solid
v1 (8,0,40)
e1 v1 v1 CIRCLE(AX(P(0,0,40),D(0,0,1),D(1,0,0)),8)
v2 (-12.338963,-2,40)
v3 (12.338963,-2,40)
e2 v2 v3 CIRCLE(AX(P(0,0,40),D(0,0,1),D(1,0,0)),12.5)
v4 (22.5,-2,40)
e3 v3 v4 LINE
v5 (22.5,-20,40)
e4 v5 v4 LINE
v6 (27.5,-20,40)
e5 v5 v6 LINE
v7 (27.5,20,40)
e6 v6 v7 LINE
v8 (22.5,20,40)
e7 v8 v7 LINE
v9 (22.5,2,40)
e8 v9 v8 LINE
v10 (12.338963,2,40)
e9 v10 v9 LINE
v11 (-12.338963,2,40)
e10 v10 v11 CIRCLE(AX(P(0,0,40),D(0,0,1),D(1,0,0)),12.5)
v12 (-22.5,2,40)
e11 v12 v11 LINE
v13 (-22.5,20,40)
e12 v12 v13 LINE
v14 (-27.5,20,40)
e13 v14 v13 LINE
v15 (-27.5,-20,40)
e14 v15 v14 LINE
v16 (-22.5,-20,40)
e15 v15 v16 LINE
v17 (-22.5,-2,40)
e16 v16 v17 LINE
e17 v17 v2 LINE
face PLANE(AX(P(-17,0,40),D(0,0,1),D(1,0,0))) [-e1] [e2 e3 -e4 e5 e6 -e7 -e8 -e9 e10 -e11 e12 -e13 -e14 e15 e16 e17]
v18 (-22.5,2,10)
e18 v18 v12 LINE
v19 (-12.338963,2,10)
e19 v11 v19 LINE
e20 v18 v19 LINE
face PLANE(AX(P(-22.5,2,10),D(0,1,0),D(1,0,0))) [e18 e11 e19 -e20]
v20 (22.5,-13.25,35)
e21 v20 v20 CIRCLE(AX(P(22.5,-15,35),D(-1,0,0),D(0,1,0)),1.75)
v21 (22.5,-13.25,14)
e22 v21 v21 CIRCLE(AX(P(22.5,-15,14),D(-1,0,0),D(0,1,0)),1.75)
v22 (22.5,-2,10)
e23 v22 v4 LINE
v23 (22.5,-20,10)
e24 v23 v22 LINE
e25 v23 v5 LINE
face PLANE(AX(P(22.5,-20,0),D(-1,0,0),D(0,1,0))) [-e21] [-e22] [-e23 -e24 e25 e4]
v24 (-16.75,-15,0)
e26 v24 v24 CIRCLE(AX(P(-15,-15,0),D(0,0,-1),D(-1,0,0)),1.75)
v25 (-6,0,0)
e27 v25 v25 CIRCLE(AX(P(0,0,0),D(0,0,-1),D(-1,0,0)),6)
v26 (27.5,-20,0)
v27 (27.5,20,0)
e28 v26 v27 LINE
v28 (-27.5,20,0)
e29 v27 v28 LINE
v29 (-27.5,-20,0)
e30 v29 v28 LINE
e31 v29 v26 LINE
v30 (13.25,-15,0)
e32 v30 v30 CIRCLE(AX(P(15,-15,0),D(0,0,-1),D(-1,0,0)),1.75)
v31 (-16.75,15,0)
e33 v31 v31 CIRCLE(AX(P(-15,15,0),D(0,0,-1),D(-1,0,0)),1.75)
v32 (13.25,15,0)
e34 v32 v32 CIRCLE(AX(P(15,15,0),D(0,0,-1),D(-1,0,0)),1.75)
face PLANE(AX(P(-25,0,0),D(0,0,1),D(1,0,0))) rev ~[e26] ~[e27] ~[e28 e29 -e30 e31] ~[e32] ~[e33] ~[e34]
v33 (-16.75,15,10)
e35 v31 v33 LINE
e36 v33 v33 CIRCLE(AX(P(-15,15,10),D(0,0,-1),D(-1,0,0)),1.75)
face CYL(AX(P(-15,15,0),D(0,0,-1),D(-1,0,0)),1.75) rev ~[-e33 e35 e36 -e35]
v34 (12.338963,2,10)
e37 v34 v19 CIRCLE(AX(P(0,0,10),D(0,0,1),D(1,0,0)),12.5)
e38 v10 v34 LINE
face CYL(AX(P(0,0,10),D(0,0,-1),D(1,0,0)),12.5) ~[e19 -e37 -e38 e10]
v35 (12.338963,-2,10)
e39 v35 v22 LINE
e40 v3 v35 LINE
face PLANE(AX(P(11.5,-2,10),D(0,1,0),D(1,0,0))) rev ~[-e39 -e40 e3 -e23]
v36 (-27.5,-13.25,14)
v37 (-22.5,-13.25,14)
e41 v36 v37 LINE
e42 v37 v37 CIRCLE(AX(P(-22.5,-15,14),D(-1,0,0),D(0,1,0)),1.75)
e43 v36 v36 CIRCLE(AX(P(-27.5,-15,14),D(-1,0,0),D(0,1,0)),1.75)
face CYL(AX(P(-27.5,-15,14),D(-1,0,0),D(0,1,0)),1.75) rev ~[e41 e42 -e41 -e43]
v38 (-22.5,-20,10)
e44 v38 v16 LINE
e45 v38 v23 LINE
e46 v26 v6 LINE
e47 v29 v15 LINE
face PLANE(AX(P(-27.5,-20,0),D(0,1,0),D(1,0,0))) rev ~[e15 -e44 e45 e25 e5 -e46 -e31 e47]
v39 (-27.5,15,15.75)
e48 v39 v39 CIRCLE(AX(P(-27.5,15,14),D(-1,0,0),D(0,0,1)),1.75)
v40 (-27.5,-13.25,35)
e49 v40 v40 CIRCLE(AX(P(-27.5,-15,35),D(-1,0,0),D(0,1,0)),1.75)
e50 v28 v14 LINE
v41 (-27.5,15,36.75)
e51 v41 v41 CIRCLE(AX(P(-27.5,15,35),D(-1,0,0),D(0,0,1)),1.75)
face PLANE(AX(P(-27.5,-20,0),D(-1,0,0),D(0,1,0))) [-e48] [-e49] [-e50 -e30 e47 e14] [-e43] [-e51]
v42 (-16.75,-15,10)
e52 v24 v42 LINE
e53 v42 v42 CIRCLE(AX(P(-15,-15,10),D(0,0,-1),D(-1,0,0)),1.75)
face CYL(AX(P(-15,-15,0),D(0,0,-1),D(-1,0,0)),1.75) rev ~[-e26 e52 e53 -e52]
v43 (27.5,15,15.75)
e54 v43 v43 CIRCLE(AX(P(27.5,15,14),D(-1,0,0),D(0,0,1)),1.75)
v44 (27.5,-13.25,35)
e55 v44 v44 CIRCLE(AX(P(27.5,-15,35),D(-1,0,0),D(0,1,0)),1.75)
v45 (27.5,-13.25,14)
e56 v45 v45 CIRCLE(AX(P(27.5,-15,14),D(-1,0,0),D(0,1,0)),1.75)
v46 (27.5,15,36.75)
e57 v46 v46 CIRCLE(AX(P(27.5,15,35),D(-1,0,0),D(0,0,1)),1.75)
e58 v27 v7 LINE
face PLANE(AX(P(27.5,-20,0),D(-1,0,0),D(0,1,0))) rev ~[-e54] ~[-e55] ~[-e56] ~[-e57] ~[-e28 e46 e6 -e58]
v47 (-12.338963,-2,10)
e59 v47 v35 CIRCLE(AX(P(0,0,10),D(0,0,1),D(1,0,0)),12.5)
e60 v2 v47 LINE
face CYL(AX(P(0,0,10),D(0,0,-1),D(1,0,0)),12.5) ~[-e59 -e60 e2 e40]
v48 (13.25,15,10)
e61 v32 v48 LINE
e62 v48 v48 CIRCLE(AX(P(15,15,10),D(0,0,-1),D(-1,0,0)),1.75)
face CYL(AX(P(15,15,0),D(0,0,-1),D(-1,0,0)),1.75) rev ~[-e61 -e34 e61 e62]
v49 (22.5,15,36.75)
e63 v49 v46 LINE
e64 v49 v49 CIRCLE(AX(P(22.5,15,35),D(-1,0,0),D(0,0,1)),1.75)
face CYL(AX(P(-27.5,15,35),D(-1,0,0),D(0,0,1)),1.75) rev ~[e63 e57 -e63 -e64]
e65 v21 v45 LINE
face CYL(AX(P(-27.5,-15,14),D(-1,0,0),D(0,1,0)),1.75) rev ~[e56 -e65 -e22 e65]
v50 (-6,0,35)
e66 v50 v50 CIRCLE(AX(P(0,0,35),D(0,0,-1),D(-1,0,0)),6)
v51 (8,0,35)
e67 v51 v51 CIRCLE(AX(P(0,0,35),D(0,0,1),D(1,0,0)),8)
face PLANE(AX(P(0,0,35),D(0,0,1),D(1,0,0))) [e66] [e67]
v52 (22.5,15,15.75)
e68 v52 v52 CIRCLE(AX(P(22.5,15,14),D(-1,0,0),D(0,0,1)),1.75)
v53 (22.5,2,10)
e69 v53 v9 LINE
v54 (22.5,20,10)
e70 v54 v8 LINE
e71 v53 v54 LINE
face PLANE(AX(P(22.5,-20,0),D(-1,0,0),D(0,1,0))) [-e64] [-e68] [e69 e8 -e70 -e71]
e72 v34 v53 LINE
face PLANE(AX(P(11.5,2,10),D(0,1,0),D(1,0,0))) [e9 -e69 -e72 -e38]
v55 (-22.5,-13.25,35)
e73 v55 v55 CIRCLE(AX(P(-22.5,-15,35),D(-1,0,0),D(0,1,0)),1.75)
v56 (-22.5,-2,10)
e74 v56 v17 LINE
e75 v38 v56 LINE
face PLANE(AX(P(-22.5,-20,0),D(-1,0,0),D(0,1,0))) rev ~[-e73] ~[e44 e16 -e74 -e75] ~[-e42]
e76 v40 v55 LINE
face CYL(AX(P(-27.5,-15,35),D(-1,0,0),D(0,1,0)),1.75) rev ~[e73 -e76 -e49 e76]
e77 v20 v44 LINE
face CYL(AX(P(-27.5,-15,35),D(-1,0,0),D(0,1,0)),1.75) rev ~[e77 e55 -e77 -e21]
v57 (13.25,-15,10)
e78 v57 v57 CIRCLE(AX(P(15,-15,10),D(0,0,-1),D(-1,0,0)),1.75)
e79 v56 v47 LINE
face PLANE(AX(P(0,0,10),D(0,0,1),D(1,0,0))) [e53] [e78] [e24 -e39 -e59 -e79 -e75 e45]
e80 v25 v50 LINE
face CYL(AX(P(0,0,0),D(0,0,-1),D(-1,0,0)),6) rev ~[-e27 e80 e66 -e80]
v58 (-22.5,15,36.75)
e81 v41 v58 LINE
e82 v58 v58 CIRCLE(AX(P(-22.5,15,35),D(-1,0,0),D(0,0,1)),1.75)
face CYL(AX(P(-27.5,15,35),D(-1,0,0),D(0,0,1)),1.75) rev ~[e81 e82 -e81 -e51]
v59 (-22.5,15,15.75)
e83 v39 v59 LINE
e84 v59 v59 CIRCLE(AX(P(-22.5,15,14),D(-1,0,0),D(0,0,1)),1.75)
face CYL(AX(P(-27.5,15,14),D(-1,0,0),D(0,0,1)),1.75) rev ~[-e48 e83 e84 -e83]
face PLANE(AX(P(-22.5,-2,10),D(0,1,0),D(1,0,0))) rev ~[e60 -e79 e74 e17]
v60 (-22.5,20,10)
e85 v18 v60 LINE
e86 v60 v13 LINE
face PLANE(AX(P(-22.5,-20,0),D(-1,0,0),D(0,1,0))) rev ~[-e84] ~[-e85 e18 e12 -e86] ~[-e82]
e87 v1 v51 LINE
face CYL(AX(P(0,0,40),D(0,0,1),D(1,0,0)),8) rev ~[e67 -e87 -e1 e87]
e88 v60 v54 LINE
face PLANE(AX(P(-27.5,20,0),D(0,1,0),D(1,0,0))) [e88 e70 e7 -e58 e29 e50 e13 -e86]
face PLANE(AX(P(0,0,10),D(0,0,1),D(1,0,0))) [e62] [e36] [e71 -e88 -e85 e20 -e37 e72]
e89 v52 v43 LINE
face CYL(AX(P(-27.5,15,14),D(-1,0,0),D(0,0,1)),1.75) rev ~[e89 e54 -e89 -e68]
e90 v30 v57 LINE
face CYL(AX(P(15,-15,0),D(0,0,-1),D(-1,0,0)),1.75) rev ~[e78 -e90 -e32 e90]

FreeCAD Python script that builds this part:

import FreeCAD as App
import Part
import Sketcher

doc = App.newDocument("Part")
body = doc.addObject("PartDesign::Body", "Body")

# Sketch on XY plane
sketch1 = body.newObject("Sketcher::SketchObject", "Sketch")
sketch1.AttachmentSupport = (doc.getObject("XY_Plane"), [""])
sketch1.MapMode = "FlatFace"
sketch1.addGeometry([
    Part.LineSegment(App.Vector(-22, 20, 0), App.Vector(-22, -20, 0)),
    Part.LineSegment(App.Vector(-22, -20, 0), App.Vector(22, -20, 0)),
    Part.LineSegment(App.Vector(22, -20, 0), App.Vector(22, 20, 0)),
    Part.LineSegment(App.Vector(22, 20, 0), App.Vector(-22, 20, 0)),
], False)
sketch1.addConstraint([
    Sketcher.Constraint("Coincident", 0, 2, 1, 1),
    Sketcher.Constraint("Coincident", 1, 2, 2, 1),
    Sketcher.Constraint("Coincident", 2, 2, 3, 1),
    Sketcher.Constraint("Coincident", 3, 2, 0, 1),
    Sketcher.Constraint("Vertical", 0),
    Sketcher.Constraint("Horizontal", 1),
    Sketcher.Constraint("Vertical", 2),
    Sketcher.Constraint("Horizontal", 3),
    Sketcher.Constraint("Symmetric", 0, 2, 2, 2, -1, 1),
    Sketcher.Constraint("DistanceX", 1, 1, 1, 2, 45.0),
    Sketcher.Constraint("DistanceY", 0, 2, 0, 1, 40.0),
])
pad1 = body.newObject("PartDesign::Pad", "Pad")
pad1.Profile = sketch1
pad1.Length = 10

# Sketch on XY plane
sketch2 = body.newObject("Sketcher::SketchObject", "Sketch001")
sketch2.AttachmentSupport = (doc.getObject("XY_Plane"), [""])
sketch2.MapMode = "FlatFace"
sketch2.addGeometry([
    Part.LineSegment(App.Vector(-28, 20, 0), App.Vector(-28, -20, 0)),  # 0
    Part.LineSegment(App.Vector(-28, -20, 0), App.Vector(-22, -20, 0)),  # 1
    Part.LineSegment(App.Vector(-22, -20, 0), App.Vector(-22, 20, 0)),  # 2
    Part.LineSegment(App.Vector(-22, 20, 0), App.Vector(-28, 20, 0)),  # 3
    Part.LineSegment(App.Vector(22, 20, 0), App.Vector(22, -20, 0)),  # 4
    Part.LineSegment(App.Vector(22, -20, 0), App.Vector(28, -20, 0)),  # 5
    Part.LineSegment(App.Vector(28, -20, 0), App.Vector(28, 20, 0)),  # 6
    Part.LineSegment(App.Vector(28, 20, 0), App.Vector(22, 20, 0)),  # 7
], False)
sketch2.addConstraint([
    Sketcher.Constraint("Coincident", 0, 2, 1, 1),
    Sketcher.Constraint("Coincident", 1, 2, 2, 1),
    Sketcher.Constraint("Coincident", 2, 2, 3, 1),
    Sketcher.Constraint("Coincident", 3, 2, 0, 1),
    Sketcher.Constraint("Coincident", 4, 2, 5, 1),
    Sketcher.Constraint("Coincident", 5, 2, 6, 1),
    Sketcher.Constraint("Coincident", 6, 2, 7, 1),
    Sketcher.Constraint("Coincident", 7, 2, 4, 1),
    Sketcher.Constraint("Vertical", 0),
    Sketcher.Constraint("Horizontal", 1),
    Sketcher.Constraint("Vertical", 2),
    Sketcher.Constraint("Horizontal", 3),
    Sketcher.Constraint("Vertical", 4),
    Sketcher.Constraint("Horizontal", 5),
    Sketcher.Constraint("Vertical", 6),
    Sketcher.Constraint("Horizontal", 7),
    Sketcher.Constraint("Symmetric", 2, 2, 4, 2, -1, 1),
    Sketcher.Constraint("Symmetric", 0, 2, 6, 2, -1, 1),
    Sketcher.Constraint("Horizontal", 1, 2, 4, 2),
    Sketcher.Constraint("DistanceX", 1, 1, 1, 2, 5.0),
    Sketcher.Constraint("DistanceY", 0, 2, 0, 1, 40.0),
    Sketcher.Constraint("DistanceX", 1, 2, 4, 2, 45.0),
])
pad2 = body.newObject("PartDesign::Pad", "Pad001")
pad2.Profile = sketch2
pad2.Length = 40

# Sketch on XY plane
sketch3 = body.newObject("Sketcher::SketchObject", "Sketch002")
sketch3.AttachmentSupport = (doc.getObject("XY_Plane"), [""])
sketch3.MapMode = "FlatFace"
sketch3.AttachmentOffset = App.Placement(App.Vector(0, 0, 10), App.Rotation())
sketch3.addGeometry(Part.Circle(App.Vector(0, 0, 0), App.Vector(0, 0, 1), 12), False)
sketch3.addConstraint([
    Sketcher.Constraint("Coincident", 0, 3, -1, 1),
    Sketcher.Constraint("Diameter", 0, 25.0),
])
pad3 = body.newObject("PartDesign::Pad", "Pad002")
pad3.Profile = sketch3
pad3.Length = 30

# Sketch on XY plane
sketch4 = body.newObject("Sketcher::SketchObject", "Sketch003")
sketch4.AttachmentSupport = (doc.getObject("XY_Plane"), [""])
sketch4.MapMode = "FlatFace"
sketch4.addGeometry(Part.Circle(App.Vector(0, 0, 0), App.Vector(0, 0, 1), 6), False)
sketch4.addConstraint([
    Sketcher.Constraint("Coincident", 0, 3, -1, 1),
    Sketcher.Constraint("Diameter", 0, 12.0),
])
pocket1 = body.newObject("PartDesign::Pocket", "Pocket")
pocket1.Profile = sketch4
pocket1.Type = "ThroughAll"
pocket1.Reversed = True

# Sketch on XY plane
sketch5 = body.newObject("Sketcher::SketchObject", "Sketch004")
sketch5.AttachmentSupport = (doc.getObject("XY_Plane"), [""])
sketch5.MapMode = "FlatFace"
sketch5.AttachmentOffset = App.Placement(App.Vector(0, 0, 40), App.Rotation())
sketch5.addGeometry(Part.Circle(App.Vector(0, 0, 0), App.Vector(0, 0, 1), 8), False)
sketch5.addConstraint([
    Sketcher.Constraint("Coincident", 0, 3, -1, 1),
    Sketcher.Constraint("Diameter", 0, 16.0),
])
pocket2 = body.newObject("PartDesign::Pocket", "Pocket001")
pocket2.Profile = sketch5
pocket2.Length = 5

# Sketch on XY plane
sketch6 = body.newObject("Sketcher::SketchObject", "Sketch005")
sketch6.AttachmentSupport = (doc.getObject("XY_Plane"), [""])
sketch6.MapMode = "FlatFace"
sketch6.addGeometry([
    Part.Circle(App.Vector(15, 15, 0), App.Vector(0, 0, 1), 1.8),
    Part.Circle(App.Vector(-15, 15, 0), App.Vector(0, 0, 1), 1.8),
    Part.Circle(App.Vector(-15, -15, 0), App.Vector(0, 0, 1), 1.8),
    Part.Circle(App.Vector(15, -15, 0), App.Vector(0, 0, 1), 1.8),
], False)
sketch6.addConstraint([
    Sketcher.Constraint("Equal", 0, 1),
    Sketcher.Constraint("Equal", 1, 2),
    Sketcher.Constraint("Equal", 2, 3),
    Sketcher.Constraint("Symmetric", 0, 3, 2, 3, -1, 1),
    Sketcher.Constraint("Symmetric", 1, 3, 3, 3, -1, 1),
    Sketcher.Constraint("Symmetric", 0, 3, 1, 3, -2),
    Sketcher.Constraint("Diameter", 0, 3.5),
    Sketcher.Constraint("DistanceX", -1, 1, 0, 3, 15.0),
    Sketcher.Constraint("DistanceY", -1, 1, 0, 3, 15.0),
])
pocket3 = body.newObject("PartDesign::Pocket", "Pocket002")
pocket3.Profile = sketch6
pocket3.Type = "ThroughAll"
pocket3.Reversed = True

# Sketch on XY plane
sketch7 = body.newObject("Sketcher::SketchObject", "Sketch006")
sketch7.AttachmentSupport = (doc.getObject("XY_Plane"), [""])
sketch7.MapMode = "FlatFace"
sketch7.AttachmentOffset = App.Placement(App.Vector(0, 0, 10), App.Rotation())
sketch7.addGeometry([
    Part.LineSegment(App.Vector(-22.5, 2, 0), App.Vector(-22.5, -2, 0)),  # 0
    Part.LineSegment(App.Vector(-22.5, -2, 0), App.Vector(-11.5, -2, 0)),  # 1
    Part.LineSegment(App.Vector(-11.5, -2, 0), App.Vector(-11.5, 2, 0)),  # 2
    Part.LineSegment(App.Vector(-11.5, 2, 0), App.Vector(-22.5, 2, 0)),  # 3
    Part.LineSegment(App.Vector(11.5, 2, 0), App.Vector(11.5, -2, 0)),  # 4
    Part.LineSegment(App.Vector(11.5, -2, 0), App.Vector(22.5, -2, 0)),  # 5
    Part.LineSegment(App.Vector(22.5, -2, 0), App.Vector(22.5, 2, 0)),  # 6
    Part.LineSegment(App.Vector(22.5, 2, 0), App.Vector(11.5, 2, 0)),  # 7
], False)
sketch7.addConstraint([
    Sketcher.Constraint("Coincident", 0, 2, 1, 1),
    Sketcher.Constraint("Coincident", 1, 2, 2, 1),
    Sketcher.Constraint("Coincident", 2, 2, 3, 1),
    Sketcher.Constraint("Coincident", 3, 2, 0, 1),
    Sketcher.Constraint("Coincident", 4, 2, 5, 1),
    Sketcher.Constraint("Coincident", 5, 2, 6, 1),
    Sketcher.Constraint("Coincident", 6, 2, 7, 1),
    Sketcher.Constraint("Coincident", 7, 2, 4, 1),
    Sketcher.Constraint("Vertical", 0),
    Sketcher.Constraint("Horizontal", 1),
    Sketcher.Constraint("Vertical", 2),
    Sketcher.Constraint("Horizontal", 3),
    Sketcher.Constraint("Vertical", 4),
    Sketcher.Constraint("Horizontal", 5),
    Sketcher.Constraint("Vertical", 6),
    Sketcher.Constraint("Horizontal", 7),
    Sketcher.Constraint("Symmetric", 2, 2, 4, 2, -1, 1),
    Sketcher.Constraint("Symmetric", 0, 2, 6, 2, -1, 1),
    Sketcher.Constraint("Horizontal", 1, 2, 4, 2),
    Sketcher.Constraint("DistanceX", 1, 1, 1, 2, 11.0),
    Sketcher.Constraint("DistanceY", 0, 2, 0, 1, 4.0),
    Sketcher.Constraint("DistanceX", 1, 2, 4, 2, 23.0),
])
pad4 = body.newObject("PartDesign::Pad", "Pad003")
pad4.Profile = sketch7
pad4.Length = 30

# Sketch on YZ plane
sketch8 = body.newObject("Sketcher::SketchObject", "Sketch007")
sketch8.AttachmentSupport = (doc.getObject("YZ_Plane"), [""])
sketch8.MapMode = "FlatFace"
sketch8.AttachmentOffset = App.Placement(App.Vector(0, 0, -27.5), App.Rotation())
sketch8.addGeometry([
    Part.Circle(App.Vector(15, 35, 0), App.Vector(0, 0, 1), 1.8),
    Part.Circle(App.Vector(-15, 35, 0), App.Vector(0, 0, 1), 1.8),
    Part.Circle(App.Vector(15, 14, 0), App.Vector(0, 0, 1), 1.8),
    Part.Circle(App.Vector(-15, 14, 0), App.Vector(0, 0, 1), 1.8),
], False)
sketch8.addConstraint([
    Sketcher.Constraint("Equal", 0, 1),
    Sketcher.Constraint("Equal", 1, 2),
    Sketcher.Constraint("Equal", 2, 3),
    Sketcher.Constraint("Symmetric", 0, 3, 1, 3, -2),
    Sketcher.Constraint("Symmetric", 2, 3, 3, 3, -2),
    Sketcher.Constraint("Vertical", 0, 3, 2, 3),
    Sketcher.Constraint("Diameter", 0, 3.5),
    Sketcher.Constraint("DistanceX", -1, 1, 0, 3, 15.0),
    Sketcher.Constraint("DistanceY", -1, 1, 0, 3, 35.0),
    Sketcher.Constraint("DistanceY", -1, 1, 2, 3, 14.0),
])
pocket4 = body.newObject("PartDesign::Pocket", "Pocket003")
pocket4.Profile = sketch8
pocket4.Type = "ThroughAll"
pocket4.Reversed = True

doc.recompute()
